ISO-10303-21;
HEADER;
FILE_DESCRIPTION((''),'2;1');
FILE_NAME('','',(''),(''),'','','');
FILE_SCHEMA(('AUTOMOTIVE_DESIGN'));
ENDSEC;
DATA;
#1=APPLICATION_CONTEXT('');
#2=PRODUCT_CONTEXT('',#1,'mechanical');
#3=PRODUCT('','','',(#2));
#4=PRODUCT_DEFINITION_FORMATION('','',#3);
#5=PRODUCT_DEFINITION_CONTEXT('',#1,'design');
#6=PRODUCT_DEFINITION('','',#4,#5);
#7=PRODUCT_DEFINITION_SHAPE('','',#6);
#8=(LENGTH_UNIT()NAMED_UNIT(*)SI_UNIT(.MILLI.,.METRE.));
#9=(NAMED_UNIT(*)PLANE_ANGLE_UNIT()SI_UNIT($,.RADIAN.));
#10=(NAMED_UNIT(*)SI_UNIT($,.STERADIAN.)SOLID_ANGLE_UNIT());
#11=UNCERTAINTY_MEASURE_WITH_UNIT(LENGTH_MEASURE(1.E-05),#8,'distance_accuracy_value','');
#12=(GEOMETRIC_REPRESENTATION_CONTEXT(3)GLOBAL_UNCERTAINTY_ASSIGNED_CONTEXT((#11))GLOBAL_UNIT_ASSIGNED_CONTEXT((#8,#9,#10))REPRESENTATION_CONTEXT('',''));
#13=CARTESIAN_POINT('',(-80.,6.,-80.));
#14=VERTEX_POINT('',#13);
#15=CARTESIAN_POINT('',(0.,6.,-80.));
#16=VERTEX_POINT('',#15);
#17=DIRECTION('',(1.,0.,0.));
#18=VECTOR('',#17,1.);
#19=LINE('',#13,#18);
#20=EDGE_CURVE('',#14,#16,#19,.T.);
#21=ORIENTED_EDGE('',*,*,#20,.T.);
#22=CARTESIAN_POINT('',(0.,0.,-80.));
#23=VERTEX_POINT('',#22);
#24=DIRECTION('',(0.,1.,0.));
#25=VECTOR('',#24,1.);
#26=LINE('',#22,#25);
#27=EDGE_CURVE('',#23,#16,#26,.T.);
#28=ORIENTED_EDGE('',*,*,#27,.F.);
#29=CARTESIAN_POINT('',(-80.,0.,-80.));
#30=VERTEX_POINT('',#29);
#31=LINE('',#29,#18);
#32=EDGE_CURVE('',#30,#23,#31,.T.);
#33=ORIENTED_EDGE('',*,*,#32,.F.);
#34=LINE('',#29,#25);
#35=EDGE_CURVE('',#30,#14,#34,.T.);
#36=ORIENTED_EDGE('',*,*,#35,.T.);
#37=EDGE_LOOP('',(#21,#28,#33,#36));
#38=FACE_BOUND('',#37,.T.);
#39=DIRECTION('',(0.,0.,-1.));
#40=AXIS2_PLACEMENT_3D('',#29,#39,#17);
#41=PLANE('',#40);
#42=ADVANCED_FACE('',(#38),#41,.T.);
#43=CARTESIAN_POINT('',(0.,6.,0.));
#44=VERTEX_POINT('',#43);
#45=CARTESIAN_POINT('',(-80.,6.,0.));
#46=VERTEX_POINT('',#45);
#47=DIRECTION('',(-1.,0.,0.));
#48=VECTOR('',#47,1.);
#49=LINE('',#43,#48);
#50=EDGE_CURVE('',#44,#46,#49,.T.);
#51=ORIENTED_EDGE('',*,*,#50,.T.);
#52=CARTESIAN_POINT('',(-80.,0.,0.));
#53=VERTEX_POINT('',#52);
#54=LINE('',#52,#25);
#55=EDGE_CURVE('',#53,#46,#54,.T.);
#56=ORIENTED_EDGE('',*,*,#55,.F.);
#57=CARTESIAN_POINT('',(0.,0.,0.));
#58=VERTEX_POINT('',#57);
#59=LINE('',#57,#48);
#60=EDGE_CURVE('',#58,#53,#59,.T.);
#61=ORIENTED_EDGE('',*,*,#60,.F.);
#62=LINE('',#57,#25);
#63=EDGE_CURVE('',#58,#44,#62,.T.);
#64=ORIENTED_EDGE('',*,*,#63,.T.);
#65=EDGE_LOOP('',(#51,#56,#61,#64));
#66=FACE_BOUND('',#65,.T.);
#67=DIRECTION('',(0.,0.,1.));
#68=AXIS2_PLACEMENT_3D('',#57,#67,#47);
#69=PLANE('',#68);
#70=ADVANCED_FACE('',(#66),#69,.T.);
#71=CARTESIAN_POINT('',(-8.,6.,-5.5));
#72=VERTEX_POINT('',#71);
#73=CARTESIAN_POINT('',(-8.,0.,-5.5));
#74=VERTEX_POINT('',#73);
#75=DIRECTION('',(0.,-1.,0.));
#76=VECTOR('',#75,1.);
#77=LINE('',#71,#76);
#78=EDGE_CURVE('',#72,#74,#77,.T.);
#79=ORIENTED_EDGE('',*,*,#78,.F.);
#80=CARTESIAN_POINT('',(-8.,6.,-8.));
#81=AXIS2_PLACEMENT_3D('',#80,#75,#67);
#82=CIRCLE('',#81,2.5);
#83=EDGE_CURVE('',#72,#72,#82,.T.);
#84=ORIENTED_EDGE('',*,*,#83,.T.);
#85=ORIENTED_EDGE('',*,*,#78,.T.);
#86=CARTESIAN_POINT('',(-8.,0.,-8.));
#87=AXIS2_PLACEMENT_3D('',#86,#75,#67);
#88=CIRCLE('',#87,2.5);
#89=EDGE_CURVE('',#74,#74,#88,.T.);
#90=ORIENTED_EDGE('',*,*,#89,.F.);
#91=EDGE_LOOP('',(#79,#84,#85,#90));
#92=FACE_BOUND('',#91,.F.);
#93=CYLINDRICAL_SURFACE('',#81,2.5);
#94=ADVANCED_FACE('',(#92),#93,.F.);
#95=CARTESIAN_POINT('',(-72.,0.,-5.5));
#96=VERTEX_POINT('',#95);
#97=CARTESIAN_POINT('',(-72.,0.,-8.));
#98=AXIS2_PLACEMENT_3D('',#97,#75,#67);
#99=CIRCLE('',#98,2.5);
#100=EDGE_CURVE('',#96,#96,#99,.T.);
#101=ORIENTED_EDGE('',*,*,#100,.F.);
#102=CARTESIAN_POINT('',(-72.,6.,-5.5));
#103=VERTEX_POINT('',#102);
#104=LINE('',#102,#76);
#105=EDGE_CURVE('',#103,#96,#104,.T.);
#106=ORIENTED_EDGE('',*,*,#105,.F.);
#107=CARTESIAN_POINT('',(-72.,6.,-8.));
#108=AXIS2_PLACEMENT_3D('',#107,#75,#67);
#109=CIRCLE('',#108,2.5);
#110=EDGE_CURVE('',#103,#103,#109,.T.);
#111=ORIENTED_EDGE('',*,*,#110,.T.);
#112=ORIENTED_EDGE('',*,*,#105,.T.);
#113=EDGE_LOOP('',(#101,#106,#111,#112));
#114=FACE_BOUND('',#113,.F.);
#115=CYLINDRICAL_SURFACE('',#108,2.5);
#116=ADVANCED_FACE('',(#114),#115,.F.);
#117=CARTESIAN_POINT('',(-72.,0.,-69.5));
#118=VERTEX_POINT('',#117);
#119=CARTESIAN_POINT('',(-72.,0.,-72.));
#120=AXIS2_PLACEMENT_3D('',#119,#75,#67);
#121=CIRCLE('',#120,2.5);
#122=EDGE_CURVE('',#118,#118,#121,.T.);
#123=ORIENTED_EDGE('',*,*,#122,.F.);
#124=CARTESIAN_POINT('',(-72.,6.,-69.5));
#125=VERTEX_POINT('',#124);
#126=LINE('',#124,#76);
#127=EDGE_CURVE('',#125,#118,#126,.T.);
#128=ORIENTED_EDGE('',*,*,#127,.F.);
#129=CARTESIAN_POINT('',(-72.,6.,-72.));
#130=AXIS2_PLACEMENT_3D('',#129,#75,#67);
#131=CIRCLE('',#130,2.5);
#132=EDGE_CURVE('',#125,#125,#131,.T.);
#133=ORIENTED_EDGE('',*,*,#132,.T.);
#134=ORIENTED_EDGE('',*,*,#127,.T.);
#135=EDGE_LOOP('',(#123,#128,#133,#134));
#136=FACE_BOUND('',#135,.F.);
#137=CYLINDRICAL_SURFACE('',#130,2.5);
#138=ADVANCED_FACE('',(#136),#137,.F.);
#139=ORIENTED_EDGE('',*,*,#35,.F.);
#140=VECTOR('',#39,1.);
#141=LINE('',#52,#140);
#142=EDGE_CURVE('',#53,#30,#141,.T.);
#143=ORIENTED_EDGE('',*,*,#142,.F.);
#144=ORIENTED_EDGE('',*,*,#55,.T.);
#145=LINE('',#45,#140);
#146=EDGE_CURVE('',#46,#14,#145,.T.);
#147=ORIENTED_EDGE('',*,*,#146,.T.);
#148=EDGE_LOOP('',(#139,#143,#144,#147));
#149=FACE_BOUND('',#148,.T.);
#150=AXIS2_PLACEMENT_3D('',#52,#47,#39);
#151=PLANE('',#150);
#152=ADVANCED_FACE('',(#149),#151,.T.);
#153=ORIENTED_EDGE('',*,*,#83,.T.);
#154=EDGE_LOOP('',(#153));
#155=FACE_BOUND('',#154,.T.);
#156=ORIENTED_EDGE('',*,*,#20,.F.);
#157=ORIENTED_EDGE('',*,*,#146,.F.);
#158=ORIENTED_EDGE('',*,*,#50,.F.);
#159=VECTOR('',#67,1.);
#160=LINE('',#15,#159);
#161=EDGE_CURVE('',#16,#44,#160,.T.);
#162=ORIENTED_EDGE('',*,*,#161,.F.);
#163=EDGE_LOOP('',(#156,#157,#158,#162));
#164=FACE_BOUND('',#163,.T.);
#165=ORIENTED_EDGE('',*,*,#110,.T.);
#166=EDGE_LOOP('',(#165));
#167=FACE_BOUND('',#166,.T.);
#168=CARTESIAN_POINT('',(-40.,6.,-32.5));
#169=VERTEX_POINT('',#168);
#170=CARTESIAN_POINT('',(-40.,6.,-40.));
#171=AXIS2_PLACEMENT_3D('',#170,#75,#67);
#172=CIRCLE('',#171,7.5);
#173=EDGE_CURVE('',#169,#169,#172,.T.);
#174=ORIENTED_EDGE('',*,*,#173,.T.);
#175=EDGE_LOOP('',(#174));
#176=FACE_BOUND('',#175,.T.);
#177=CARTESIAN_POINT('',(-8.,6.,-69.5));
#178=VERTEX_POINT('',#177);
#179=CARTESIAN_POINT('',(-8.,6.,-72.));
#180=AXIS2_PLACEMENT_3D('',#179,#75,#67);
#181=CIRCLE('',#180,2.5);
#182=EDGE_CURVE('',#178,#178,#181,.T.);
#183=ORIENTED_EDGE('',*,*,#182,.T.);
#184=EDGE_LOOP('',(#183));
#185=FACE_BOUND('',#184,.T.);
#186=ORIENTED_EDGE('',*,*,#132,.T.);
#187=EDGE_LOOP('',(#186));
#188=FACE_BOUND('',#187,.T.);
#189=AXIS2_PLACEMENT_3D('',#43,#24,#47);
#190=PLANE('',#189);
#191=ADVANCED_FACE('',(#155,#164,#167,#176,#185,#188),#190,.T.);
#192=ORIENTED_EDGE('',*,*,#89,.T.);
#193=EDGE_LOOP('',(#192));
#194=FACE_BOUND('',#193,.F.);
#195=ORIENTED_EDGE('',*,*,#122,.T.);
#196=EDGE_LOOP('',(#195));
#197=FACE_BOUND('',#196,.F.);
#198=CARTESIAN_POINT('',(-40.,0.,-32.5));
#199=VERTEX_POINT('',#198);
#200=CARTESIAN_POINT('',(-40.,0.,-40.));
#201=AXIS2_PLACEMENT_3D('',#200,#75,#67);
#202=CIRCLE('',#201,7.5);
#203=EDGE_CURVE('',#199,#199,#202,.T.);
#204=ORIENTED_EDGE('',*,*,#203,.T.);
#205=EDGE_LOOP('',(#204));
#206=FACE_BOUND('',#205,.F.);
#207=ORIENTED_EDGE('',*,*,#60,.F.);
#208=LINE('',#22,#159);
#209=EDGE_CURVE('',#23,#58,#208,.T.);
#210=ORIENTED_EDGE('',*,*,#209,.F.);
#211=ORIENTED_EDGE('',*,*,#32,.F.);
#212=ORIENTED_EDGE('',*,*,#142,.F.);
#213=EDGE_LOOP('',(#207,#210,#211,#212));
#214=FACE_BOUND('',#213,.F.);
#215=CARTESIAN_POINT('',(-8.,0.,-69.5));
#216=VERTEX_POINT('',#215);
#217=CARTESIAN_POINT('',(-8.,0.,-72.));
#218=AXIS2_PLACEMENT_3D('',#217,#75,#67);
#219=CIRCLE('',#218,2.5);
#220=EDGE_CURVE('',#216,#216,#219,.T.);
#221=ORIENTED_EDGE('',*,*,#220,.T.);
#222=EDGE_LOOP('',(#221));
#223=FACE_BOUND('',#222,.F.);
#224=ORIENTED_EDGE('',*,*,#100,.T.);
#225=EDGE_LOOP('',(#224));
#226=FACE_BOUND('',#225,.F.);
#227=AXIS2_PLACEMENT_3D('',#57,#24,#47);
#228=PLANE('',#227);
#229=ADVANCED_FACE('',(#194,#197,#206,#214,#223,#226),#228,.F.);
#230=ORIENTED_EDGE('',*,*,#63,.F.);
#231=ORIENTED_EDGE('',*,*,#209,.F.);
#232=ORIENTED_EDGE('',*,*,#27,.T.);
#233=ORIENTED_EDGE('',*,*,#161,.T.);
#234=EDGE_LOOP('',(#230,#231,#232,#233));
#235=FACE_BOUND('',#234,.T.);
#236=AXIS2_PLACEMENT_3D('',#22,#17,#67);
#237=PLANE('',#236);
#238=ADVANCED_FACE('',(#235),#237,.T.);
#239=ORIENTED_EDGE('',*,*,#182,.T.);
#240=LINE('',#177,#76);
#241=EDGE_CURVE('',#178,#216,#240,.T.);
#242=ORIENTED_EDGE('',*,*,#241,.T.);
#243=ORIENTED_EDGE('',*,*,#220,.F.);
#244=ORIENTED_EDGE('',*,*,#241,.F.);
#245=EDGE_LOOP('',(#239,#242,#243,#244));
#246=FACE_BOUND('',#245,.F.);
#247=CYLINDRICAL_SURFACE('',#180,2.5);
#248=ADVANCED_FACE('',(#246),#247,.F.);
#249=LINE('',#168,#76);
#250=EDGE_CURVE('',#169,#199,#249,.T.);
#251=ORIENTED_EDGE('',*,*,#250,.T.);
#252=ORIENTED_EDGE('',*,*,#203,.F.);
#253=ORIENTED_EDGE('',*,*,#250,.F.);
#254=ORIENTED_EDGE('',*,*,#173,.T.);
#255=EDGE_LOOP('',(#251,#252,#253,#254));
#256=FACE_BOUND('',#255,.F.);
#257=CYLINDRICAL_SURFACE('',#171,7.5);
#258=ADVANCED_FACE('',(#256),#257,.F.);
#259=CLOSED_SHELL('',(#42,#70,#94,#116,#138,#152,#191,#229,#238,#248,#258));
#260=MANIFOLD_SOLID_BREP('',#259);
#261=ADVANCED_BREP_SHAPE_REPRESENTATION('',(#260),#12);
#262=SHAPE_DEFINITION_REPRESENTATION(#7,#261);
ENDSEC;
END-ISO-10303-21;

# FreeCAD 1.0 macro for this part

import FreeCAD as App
import Part
import Sketcher


def add_polygon(sketch, points):
    """Adds a closed chain of lines whose ends are joined by coincident constraints."""
    first, n = sketch.GeometryCount, len(points)
    for a, b in zip(points, points[1:] + points[:1]):
        sketch.addGeometry(Part.LineSegment(App.Vector(*a, 0), App.Vector(*b, 0)), False)
    for i in range(n):
        sketch.addConstraint(Sketcher.Constraint("Coincident", first + i, 2, first + (i + 1) % n, 1))

doc = App.newDocument("Part")
body = doc.addObject("PartDesign::Body", "Body")

# Sketch on XZ plane
sketch1 = body.newObject("Sketcher::SketchObject", "Sketch")
sketch1.AttachmentSupport = (doc.getObject("XZ_Plane"), [""])
sketch1.MapMode = "FlatFace"
add_polygon(sketch1, [(-80, 0), (0, 0), (0, -80), (-80, -80)])  # lines 0-3
sketch1.addConstraint([
    Sketcher.Constraint("Horizontal", 0),
    Sketcher.Constraint("Vertical", 1),
    Sketcher.Constraint("Horizontal", 2),
    Sketcher.Constraint("Vertical", 3),
    Sketcher.Constraint("Coincident", 0, 2, -1, 1),
    Sketcher.Constraint("Equal", 2, 1),
    Sketcher.Constraint("DistanceX", 0, 1, 0, 2, 80.0),
])
pad1 = body.newObject("PartDesign::Pad", "Pad")
pad1.Profile = sketch1
pad1.Length = 6
pad1.Reversed = True

# Sketch on XZ plane
sketch2 = body.newObject("Sketcher::SketchObject", "Sketch001")
sketch2.AttachmentSupport = (doc.getObject("XZ_Plane"), [""])
sketch2.MapMode = "FlatFace"
sketch2.AttachmentOffset = App.Placement(App.Vector(0, 0, -6), App.Rotation())
sketch2.addGeometry([
    Part.Circle(App.Vector(-8, -8, 0), App.Vector(0, 0, 1), 2.5),
    Part.Circle(App.Vector(-72, -8, 0), App.Vector(0, 0, 1), 2.5),
    Part.Circle(App.Vector(-72, -72, 0), App.Vector(0, 0, 1), 2.5),
    Part.Circle(App.Vector(-8, -72, 0), App.Vector(0, 0, 1), 2.5),
], False)
sketch2.addConstraint([
    Sketcher.Constraint("Equal", 0, 1),
    Sketcher.Constraint("Equal", 1, 2),
    Sketcher.Constraint("Equal", 2, 3),
    Sketcher.Constraint("Horizontal", 0, 3, 1, 3),
    Sketcher.Constraint("Horizontal", 2, 3, 3, 3),
    Sketcher.Constraint("Vertical", 1, 3, 2, 3),
    Sketcher.Constraint("Vertical", 0, 3, 3, 3),
    Sketcher.Constraint("Diameter", 0, 5.0),
    Sketcher.Constraint("DistanceX", 0, 3, -1, 1, 8.0),
    Sketcher.Constraint("DistanceY", 0, 3, -1, 1, 8.0),
    Sketcher.Constraint("DistanceX", 1, 3, -1, 1, 72.0),
    Sketcher.Constraint("DistanceY", 2, 3, -1, 1, 72.0),
])
doc.recompute()
hole = body.newObject("PartDesign::Hole", "Hole")
hole.Profile = sketch2
hole.ThreadType = "None"
hole.Diameter = 5
hole.DepthType = "Dimension"
hole.Depth = 6
hole.DrillPoint = "Flat"
hole.Reversed = True

# Sketch on XZ plane
sketch3 = body.newObject("Sketcher::SketchObject", "Sketch002")
sketch3.AttachmentSupport = (doc.getObject("XZ_Plane"), [""])
sketch3.MapMode = "FlatFace"
sketch3.AttachmentOffset = App.Placement(App.Vector(0, 0, -6), App.Rotation())
sketch3.addGeometry(Part.Circle(App.Vector(-40, -40, 0), App.Vector(0, 0, 1), 8), False)
sketch3.addConstraint([
    Sketcher.Constraint("Diameter", 0, 15.0),
    Sketcher.Constraint("DistanceX", 0, 3, -1, 1, 40.0),
    Sketcher.Constraint("DistanceY", 0, 3, -1, 1, 40.0),
])
doc.recompute()
hole2 = body.newObject("PartDesign::Hole", "Hole001")
hole2.Profile = sketch3
hole2.ThreadType = "None"
hole2.Diameter = 15
hole2.DepthType = "Dimension"
hole2.Depth = 6
hole2.DrillPoint = "Flat"
hole2.Reversed = True

doc.recompute()
